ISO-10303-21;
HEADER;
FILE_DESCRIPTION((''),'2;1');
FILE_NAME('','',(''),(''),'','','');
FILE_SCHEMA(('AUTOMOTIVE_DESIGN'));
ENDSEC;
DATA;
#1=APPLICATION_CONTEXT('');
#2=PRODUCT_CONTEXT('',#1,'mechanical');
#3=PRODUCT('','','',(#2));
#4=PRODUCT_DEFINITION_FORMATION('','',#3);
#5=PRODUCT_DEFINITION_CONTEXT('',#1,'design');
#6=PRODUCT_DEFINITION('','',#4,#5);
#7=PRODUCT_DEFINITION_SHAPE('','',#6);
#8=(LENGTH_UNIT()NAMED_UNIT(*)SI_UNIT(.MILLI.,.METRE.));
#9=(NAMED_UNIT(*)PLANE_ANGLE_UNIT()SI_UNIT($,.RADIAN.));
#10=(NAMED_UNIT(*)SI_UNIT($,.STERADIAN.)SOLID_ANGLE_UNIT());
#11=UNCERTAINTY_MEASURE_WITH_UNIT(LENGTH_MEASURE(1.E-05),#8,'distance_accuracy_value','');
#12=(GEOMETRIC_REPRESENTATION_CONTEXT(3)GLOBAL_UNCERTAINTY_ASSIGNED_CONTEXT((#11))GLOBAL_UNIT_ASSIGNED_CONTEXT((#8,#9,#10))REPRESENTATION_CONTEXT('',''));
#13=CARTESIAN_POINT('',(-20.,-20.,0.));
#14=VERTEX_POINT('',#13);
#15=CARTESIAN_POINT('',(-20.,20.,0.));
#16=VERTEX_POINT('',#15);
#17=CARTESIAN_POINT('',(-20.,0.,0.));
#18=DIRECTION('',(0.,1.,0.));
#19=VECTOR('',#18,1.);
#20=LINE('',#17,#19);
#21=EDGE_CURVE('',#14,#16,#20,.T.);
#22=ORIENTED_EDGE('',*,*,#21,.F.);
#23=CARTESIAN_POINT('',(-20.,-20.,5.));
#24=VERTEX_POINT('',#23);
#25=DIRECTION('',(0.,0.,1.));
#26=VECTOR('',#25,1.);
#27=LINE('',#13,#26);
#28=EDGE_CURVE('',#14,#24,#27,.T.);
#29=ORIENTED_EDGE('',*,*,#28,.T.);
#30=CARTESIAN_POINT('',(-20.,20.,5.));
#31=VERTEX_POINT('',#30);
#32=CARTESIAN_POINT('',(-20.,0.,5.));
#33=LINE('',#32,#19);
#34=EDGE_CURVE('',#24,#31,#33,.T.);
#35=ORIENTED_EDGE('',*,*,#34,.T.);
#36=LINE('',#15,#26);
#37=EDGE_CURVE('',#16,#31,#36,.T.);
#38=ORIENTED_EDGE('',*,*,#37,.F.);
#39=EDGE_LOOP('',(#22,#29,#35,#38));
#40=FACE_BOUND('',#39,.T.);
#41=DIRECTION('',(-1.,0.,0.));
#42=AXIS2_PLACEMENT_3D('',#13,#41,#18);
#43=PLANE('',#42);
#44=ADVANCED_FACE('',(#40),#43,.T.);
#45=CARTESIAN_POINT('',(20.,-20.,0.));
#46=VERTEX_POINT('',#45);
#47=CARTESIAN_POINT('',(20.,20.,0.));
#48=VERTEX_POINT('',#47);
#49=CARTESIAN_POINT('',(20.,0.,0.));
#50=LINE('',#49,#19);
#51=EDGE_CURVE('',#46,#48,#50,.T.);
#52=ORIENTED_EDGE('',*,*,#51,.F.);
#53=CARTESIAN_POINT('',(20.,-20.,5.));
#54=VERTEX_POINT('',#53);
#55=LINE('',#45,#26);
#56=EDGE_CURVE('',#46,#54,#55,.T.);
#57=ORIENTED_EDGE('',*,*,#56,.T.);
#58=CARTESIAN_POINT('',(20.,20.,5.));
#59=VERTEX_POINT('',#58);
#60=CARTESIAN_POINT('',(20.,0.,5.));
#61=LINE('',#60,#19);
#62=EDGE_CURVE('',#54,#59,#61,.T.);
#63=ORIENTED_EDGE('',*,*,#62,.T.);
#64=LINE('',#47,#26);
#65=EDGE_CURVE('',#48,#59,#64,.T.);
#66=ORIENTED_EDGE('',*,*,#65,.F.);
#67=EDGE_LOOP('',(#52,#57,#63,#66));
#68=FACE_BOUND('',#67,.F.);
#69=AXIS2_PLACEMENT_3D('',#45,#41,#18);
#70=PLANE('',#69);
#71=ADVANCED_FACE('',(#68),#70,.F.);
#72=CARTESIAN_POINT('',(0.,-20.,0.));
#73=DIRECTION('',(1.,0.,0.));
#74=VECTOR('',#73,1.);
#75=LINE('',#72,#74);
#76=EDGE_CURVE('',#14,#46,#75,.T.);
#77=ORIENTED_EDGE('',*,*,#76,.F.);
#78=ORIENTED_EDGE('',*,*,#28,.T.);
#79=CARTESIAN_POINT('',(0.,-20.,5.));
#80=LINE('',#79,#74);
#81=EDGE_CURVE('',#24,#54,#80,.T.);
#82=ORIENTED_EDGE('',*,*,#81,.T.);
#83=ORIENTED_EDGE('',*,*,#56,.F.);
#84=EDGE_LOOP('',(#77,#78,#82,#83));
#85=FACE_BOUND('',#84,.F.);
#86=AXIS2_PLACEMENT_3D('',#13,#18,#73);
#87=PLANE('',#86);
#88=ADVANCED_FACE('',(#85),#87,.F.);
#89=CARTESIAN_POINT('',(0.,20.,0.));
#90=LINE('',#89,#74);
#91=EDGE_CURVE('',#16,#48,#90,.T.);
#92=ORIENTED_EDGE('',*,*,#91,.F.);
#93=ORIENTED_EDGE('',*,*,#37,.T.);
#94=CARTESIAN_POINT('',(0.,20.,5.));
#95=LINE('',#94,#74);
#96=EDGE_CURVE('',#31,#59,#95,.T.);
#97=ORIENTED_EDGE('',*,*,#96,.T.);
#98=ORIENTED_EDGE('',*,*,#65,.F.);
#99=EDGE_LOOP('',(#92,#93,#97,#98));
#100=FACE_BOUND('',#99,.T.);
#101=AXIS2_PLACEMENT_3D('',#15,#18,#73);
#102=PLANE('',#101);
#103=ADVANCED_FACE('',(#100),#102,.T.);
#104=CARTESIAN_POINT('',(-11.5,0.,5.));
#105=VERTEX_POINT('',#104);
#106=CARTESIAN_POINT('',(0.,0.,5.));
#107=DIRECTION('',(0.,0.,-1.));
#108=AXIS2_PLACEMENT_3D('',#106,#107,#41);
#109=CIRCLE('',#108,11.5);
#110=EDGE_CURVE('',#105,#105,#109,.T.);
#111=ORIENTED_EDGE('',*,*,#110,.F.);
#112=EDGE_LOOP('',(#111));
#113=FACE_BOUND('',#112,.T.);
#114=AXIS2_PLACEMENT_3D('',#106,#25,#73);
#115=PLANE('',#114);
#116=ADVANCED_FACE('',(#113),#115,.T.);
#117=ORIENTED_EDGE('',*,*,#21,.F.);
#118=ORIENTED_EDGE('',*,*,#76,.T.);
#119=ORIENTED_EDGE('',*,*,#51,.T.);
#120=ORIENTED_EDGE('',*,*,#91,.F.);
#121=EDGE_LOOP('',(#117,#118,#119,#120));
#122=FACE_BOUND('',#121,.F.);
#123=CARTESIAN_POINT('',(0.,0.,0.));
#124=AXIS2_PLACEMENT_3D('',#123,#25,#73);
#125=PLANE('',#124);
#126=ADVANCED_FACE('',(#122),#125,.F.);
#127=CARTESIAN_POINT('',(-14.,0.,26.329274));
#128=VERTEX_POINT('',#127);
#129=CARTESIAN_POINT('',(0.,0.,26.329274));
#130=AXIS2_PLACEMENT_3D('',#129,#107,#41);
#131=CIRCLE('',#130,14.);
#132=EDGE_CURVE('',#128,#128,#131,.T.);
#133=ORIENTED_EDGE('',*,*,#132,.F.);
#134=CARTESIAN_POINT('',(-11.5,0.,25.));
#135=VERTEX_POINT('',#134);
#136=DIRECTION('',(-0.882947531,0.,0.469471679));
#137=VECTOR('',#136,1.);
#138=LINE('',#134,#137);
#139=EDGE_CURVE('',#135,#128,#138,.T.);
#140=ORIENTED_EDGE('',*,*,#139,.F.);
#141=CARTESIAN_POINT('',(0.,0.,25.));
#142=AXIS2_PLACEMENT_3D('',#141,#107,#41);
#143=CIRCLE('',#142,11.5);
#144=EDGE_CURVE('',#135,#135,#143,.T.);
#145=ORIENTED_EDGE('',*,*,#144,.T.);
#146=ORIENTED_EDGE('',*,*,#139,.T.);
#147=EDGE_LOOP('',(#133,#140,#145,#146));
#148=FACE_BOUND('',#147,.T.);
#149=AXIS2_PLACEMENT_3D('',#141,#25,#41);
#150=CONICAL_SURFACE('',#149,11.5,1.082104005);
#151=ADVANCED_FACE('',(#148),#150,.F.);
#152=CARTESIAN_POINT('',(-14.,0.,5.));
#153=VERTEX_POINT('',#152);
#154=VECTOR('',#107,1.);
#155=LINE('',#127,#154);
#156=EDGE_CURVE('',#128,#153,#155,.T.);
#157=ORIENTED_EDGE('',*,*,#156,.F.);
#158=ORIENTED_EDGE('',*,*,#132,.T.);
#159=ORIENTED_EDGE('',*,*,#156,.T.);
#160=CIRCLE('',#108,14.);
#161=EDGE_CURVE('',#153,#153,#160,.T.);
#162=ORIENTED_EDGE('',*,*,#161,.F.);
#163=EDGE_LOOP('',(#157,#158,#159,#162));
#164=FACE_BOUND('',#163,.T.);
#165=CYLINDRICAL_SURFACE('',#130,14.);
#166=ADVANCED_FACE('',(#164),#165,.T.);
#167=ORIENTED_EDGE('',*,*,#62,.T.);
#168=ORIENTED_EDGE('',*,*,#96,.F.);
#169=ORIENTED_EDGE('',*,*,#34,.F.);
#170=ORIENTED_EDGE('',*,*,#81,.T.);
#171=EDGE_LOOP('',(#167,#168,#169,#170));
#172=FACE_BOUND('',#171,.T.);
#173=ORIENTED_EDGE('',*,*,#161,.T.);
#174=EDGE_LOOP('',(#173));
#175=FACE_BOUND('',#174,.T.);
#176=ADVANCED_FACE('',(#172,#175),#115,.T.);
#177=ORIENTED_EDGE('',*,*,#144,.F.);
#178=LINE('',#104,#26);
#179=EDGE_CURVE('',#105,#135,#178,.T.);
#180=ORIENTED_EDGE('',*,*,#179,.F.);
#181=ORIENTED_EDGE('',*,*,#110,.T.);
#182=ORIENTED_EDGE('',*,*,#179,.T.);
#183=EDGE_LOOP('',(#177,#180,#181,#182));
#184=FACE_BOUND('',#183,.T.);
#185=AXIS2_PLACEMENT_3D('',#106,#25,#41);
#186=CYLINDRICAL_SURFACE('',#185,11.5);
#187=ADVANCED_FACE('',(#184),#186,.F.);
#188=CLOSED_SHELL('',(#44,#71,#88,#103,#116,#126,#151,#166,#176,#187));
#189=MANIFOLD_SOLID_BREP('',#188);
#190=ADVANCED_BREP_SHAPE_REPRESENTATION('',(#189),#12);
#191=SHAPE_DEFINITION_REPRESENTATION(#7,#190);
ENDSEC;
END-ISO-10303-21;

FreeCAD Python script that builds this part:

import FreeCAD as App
import Part
import Sketcher
from FreeCAD import Vector
Q = App.Units.Quantity

doc = App.newDocument("Part")
params = doc.addObject("Spreadsheet::Sheet", "Params")
for row, (alias, value) in enumerate([
    ("sketch1_width", "40 mm"),
    ("pad1_length", "5 mm"),
    ("sketch2_height", "20 mm"),
    ("sketch2_width", "2.5 mm"),
    ("revolution_angle", "360 deg"),
], start=1):
    params.set(f"A{row}", alias)
    params.set(f"B{row}", "=" + value)
    params.setAlias(f"B{row}", alias)

body = doc.addObject("PartDesign::Body", "Body")

sketch1 = body.newObject("Sketcher::SketchObject", "Sketch")
sketch1.AttachmentSupport = (doc.getObject("XY_Plane"), [""])
sketch1.MapMode = "FlatFace"
sketch1.addGeometry([
    Part.LineSegment(Vector(-20, 20, 0), Vector(-20, -20, 0)),
    Part.LineSegment(Vector(-20, -20, 0), Vector(20, -20, 0)),
    Part.LineSegment(Vector(20, -20, 0), Vector(20, 20, 0)),
    Part.LineSegment(Vector(20, 20, 0), Vector(-20, 20, 0)),
], False)
sketch1.addConstraint([
    Sketcher.Constraint("Coincident", 0, 2, 1, 1),
    Sketcher.Constraint("Coincident", 1, 2, 2, 1),
    Sketcher.Constraint("Coincident", 2, 2, 3, 1),
    Sketcher.Constraint("Coincident", 3, 2, 0, 1),
    Sketcher.Constraint("Vertical", 0),
    Sketcher.Constraint("Horizontal", 1),
    Sketcher.Constraint("Vertical", 2),
    Sketcher.Constraint("Horizontal", 3),
    Sketcher.Constraint("Symmetric", 0, 2, 2, 2, -1, 1),
    Sketcher.Constraint("Equal", 3, 0),
    Sketcher.Constraint("DistanceX", 1, 1, 1, 2, Q("40 mm")),
])
sketch1.setExpression("Constraints[10]", "Params.sketch1_width")
pad1 = body.newObject("PartDesign::Pad", "Pad")
pad1.Profile = sketch1
pad1.setExpression("Length", "Params.pad1_length")

sketch2 = body.newObject("Sketcher::SketchObject", "Sketch001")
sketch2.AttachmentSupport = (doc.getObject("XZ_Plane"), [""])
sketch2.MapMode = "FlatFace"
sketch2.addGeometry([
    Part.LineSegment(Vector(-14, 26.3, 0), Vector(-14, 5, 0)),
    Part.LineSegment(Vector(-14, 5, 0), Vector(-11.5, 5, 0)),
    Part.LineSegment(Vector(-11.5, 5, 0), Vector(-11.5, 25, 0)),
    Part.LineSegment(Vector(-11.5, 25, 0), Vector(-14, 26.3, 0)),
], False)
sketch2.addConstraint([
    Sketcher.Constraint("Coincident", 0, 2, 1, 1),
    Sketcher.Constraint("Coincident", 1, 2, 2, 1),
    Sketcher.Constraint("Coincident", 2, 2, 3, 1),
    Sketcher.Constraint("Coincident", 3, 2, 0, 1),
    Sketcher.Constraint("Vertical", 0),
    Sketcher.Constraint("Horizontal", 1),
    Sketcher.Constraint("Vertical", 2),
    Sketcher.Constraint("DistanceY", 2, 1, 2, 2, Q("20 mm")),
    Sketcher.Constraint("Angle", 3, Q("151.999992 deg")),
    Sketcher.Constraint("DistanceX", 1, 1, 1, 2, Q("2.5 mm")),
    Sketcher.Constraint("DistanceX", 0, 2, -1, 1, Q("14 mm")),
    Sketcher.Constraint("DistanceY", -1, 1, 0, 2, Q("5 mm")),
])
sketch2.setExpression("Constraints[7]", "Params.sketch2_height")
sketch2.setExpression("Constraints[9]", "Params.sketch2_width")
revolution = body.newObject("PartDesign::Revolution", "Revolution")
revolution.Profile = sketch2
revolution.ReferenceAxis = (sketch2, ["V_Axis"])
revolution.setExpression("Angle", "Params.revolution_angle")

doc.recompute()
